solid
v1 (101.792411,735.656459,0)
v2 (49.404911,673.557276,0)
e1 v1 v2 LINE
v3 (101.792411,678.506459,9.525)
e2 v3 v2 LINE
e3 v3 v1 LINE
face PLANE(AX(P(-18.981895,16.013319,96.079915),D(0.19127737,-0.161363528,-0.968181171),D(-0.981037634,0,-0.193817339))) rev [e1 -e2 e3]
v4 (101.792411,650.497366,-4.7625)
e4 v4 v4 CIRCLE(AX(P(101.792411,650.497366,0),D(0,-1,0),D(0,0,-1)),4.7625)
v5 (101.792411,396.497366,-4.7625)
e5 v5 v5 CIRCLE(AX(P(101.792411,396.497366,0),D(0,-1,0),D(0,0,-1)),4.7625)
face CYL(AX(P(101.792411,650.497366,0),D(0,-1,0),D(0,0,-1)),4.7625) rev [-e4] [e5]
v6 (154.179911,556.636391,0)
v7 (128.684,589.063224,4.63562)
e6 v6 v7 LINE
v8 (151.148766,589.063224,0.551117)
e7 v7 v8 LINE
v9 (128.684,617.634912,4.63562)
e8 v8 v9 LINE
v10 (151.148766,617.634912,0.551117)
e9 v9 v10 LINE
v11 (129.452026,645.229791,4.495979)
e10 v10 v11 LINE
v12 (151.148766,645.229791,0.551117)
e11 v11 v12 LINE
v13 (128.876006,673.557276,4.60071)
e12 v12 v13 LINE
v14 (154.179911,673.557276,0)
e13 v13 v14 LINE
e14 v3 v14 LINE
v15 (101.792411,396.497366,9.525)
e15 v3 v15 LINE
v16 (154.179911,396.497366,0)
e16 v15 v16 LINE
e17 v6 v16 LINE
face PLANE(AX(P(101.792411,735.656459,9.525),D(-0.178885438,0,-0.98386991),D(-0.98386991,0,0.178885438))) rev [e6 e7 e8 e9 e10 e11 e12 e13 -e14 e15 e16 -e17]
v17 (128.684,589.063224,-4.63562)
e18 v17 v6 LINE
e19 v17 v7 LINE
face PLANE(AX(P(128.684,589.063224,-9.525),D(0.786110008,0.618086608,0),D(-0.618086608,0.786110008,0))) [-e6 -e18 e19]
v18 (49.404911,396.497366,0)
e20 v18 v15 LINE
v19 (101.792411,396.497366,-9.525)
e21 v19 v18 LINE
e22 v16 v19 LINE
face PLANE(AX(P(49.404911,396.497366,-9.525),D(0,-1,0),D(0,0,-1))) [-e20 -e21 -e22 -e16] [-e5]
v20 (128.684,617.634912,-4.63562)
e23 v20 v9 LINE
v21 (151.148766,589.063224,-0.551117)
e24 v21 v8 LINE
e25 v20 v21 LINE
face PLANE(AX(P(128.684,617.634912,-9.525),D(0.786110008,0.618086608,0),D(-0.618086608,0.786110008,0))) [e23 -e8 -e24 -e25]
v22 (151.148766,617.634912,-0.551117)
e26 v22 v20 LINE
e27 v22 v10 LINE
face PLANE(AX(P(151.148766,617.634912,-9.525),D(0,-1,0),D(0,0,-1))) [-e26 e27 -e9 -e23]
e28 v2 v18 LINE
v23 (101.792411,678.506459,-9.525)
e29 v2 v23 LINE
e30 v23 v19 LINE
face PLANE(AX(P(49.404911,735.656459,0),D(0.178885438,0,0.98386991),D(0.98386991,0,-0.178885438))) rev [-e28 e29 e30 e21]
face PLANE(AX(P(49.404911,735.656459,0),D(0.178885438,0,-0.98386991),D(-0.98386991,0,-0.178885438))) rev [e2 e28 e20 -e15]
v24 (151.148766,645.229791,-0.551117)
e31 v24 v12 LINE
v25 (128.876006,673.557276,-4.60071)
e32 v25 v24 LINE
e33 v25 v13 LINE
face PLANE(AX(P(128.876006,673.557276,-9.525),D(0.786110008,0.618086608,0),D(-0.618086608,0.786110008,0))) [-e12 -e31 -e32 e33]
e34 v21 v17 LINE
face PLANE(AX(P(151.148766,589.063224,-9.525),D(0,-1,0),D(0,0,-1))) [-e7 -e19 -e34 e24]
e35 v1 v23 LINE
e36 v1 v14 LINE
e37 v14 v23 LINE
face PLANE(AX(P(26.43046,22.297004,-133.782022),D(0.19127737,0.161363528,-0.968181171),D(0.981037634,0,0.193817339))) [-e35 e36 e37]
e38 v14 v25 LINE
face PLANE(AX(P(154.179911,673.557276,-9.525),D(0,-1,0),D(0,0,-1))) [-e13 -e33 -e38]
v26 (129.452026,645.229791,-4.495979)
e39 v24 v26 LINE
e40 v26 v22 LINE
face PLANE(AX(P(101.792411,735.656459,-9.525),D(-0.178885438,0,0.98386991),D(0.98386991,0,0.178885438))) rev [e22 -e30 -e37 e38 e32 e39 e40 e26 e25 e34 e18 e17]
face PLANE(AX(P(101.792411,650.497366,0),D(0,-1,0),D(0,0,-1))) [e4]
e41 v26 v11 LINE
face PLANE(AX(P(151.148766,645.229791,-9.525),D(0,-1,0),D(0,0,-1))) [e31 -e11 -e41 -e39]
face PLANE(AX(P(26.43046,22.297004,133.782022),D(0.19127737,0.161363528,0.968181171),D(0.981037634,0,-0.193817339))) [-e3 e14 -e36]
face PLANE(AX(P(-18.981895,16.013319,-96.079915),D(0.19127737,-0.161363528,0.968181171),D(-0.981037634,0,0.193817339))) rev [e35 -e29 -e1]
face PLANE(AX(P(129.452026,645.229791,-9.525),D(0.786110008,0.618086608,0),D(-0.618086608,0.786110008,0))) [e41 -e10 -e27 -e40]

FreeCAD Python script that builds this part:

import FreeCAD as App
import Part
import Sketcher
Q = App.Units.Quantity


def add_polygon(sketch, points):
    """Adds a closed chain of lines whose ends are joined by coincident constraints."""
    first, n = sketch.GeometryCount, len(points)
    for a, b in zip(points, points[1:] + points[:1]):
        sketch.addGeometry(Part.LineSegment(App.Vector(*a, 0), App.Vector(*b, 0)), False)
    for i in range(n):
        sketch.addConstraint(Sketcher.Constraint("Coincident", first + i, 2, first + (i + 1) % n, 1))

doc = App.newDocument("Part")
body = doc.addObject("PartDesign::Body", "Body")

# Sketch on XY plane
sketch1 = doc.addObject("Sketcher::SketchObject", "Sketch")
body.addObject(sketch1)
sketch1.AttachmentSupport = (doc.XY_Plane, [""])
sketch1.MapMode = "FlatFace"
add_polygon(sketch1, [(102, 736), (49, 674), (49, 396), (154, 396), (154, 557), (129, 589), (151, 589), (129, 618), (151, 618), (129, 645), (151, 645), (129, 674), (154, 674)])  # lines 0-12
sketch1.addConstraint([
    Sketcher.Constraint("Vertical", 1),
    Sketcher.Constraint("Horizontal", 2),
    Sketcher.Constraint("Vertical", 3),
    Sketcher.Constraint("Horizontal", 5),
    Sketcher.Constraint("Horizontal", 7),
    Sketcher.Constraint("Horizontal", 9),
    Sketcher.Constraint("Horizontal", 11),
    Sketcher.Constraint("Parallel", 4, 6),
    Sketcher.Constraint("Parallel", 6, 8),
    Sketcher.Constraint("Parallel", 8, 10),
    Sketcher.Constraint("Horizontal", 0, 2, 10, 2),
    Sketcher.Constraint("Vertical", 4, 2, 6, 2),
    Sketcher.Constraint("Vertical", 5, 2, 7, 2),
    Sketcher.Constraint("Vertical", 7, 2, 9, 2),
    Sketcher.Constraint("Vertical", 3, 2, 11, 2),
    Sketcher.Constraint("Equal", 0, 12),
    Sketcher.Constraint("DistanceX", 2, 1, 2, 2, Q("4.125 in")),
    Sketcher.Constraint("DistanceX", 9, 1, 9, 2, 21.69674),
    Sketcher.Constraint("DistanceY", 1, 2, 1, 1, 277.05991),
    Sketcher.Constraint("DistanceX", -1, 1, 4, 2, 128.684),
    Sketcher.Constraint("Distance", 4, 41.249739),
    Sketcher.Constraint("Distance", 6, 36.345661),
    Sketcher.Constraint("DistanceX", 5, 1, 5, 2, 22.464767),
    Sketcher.Constraint("DistanceX", 11, 1, 11, 2, 25.303905),
    Sketcher.Constraint("DistanceY", -1, 1, 3, 2, 556.636391),
    Sketcher.Constraint("DistanceY", -1, 1, 12, 2, 735.656459),
])
pad1 = doc.addObject("PartDesign::Pad", "Pad")
body.addObject(pad1)
pad1.Profile = sketch1
pad1.Type = "TwoLengths"
pad1.Length = Q("0.375 in")
pad1.Length2 = Q("0.375 in")

# Sketch on XZ plane
sketch2 = doc.addObject("Sketcher::SketchObject", "Sketch001")
body.addObject(sketch2)
sketch2.AttachmentSupport = (doc.XZ_Plane, [""])
sketch2.MapMode = "FlatFace"
sketch2.AttachmentOffset = App.Placement(App.Vector(0, 0, -396.497366), App.Rotation())
add_polygon(sketch2, [(49, 0), (102, 10), (154, 0), (160, 0), (160, 14), (44, 14), (44, 0)])  # lines 0-6
sketch2.addConstraint([
    Sketcher.Constraint("Horizontal", 2),
    Sketcher.Constraint("Vertical", 3),
    Sketcher.Constraint("Horizontal", 4),
    Sketcher.Constraint("Vertical", 5),
    Sketcher.Constraint("Horizontal", 6),
    Sketcher.Constraint("PointOnObject", 1, 2, -1),
    Sketcher.Constraint("PointOnObject", 5, 2, -1),
    Sketcher.Constraint("Equal", 0, 1),
    Sketcher.Constraint("DistanceY", -1, 1, 0, 2, Q("0.375 in")),
    Sketcher.Constraint("DistanceX", 0, 2, 1, 2, Q("2.0625 in")),
    Sketcher.Constraint("DistanceY", 3, 1, 3, 2, 13.649149),
    Sketcher.Constraint("DistanceX", 2, 1, 2, 2, 5.477415),
    Sketcher.Constraint("DistanceX", 4, 2, 4, 1, 115.498833),
    Sketcher.Constraint("DistanceX", -1, 1, 0, 2, 101.792411),
])
pocket1 = doc.addObject("PartDesign::Pocket", "Pocket")
body.addObject(pocket1)
pocket1.Profile = sketch2
pocket1.Type = "ThroughAll"

# Sketch on XZ plane
sketch3 = doc.addObject("Sketcher::SketchObject", "Sketch002")
body.addObject(sketch3)
sketch3.AttachmentSupport = (doc.XZ_Plane, [""])
sketch3.MapMode = "FlatFace"
sketch3.AttachmentOffset = App.Placement(App.Vector(0, 0, -396.497366), App.Rotation())
add_polygon(sketch3, [(102, -10), (49, 0), (44, 0), (44, -15), (160, -15), (160, 0), (154, 0)])  # lines 0-6
sketch3.addConstraint([
    Sketcher.Constraint("Horizontal", 1),
    Sketcher.Constraint("Vertical", 2),
    Sketcher.Constraint("Horizontal", 3),
    Sketcher.Constraint("Vertical", 4),
    Sketcher.Constraint("Horizontal", 5),
    Sketcher.Constraint("PointOnObject", 0, 2, -1),
    Sketcher.Constraint("PointOnObject", 4, 2, -1),
    Sketcher.Constraint("Equal", 0, 6),
    Sketcher.Constraint("DistanceY", 6, 2, -1, 1, Q("0.375 in")),
    Sketcher.Constraint("DistanceX", 0, 2, 5, 2, Q("4.125 in")),
    Sketcher.Constraint("DistanceX", 1, 2, 1, 1, 5.722898),
    Sketcher.Constraint("DistanceX", 5, 2, 5, 1, 5.400659),
    Sketcher.Constraint("DistanceY", 2, 2, 2, 1, 14.500746),
    Sketcher.Constraint("DistanceX", -1, 1, 0, 2, 49.404911),
])
pocket2 = doc.addObject("PartDesign::Pocket", "Pocket001")
body.addObject(pocket2)
pocket2.Profile = sketch3
pocket2.Type = "ThroughAll"

# Sketch on an angled plane
sketch4 = doc.addObject("Sketcher::SketchObject", "Sketch003")
body.addObject(sketch4)
sketch4.Placement = App.Placement(App.Vector(26.43046, 22.297004, 133.782022), App.Rotation(App.Vector(0.981536025, -0.031445806, -0.188674835), App.Vector(0, 0.986393924, -0.164398987), App.Vector(0.19127737, 0.161363528, 0.968181171), "ZXY"))
add_polygon(sketch4, [(40, 769), (40, 633), (138, 633), (138, 769)])  # lines 0-3
sketch4.addConstraint([
    Sketcher.Constraint("Vertical", 0),
    Sketcher.Constraint("Horizontal", 1),
    Sketcher.Constraint("Vertical", 2),
    Sketcher.Constraint("Horizontal", 3),
    Sketcher.Constraint("DistanceX", 1, 1, 1, 2, 97.518379),
    Sketcher.Constraint("DistanceY", 0, 2, 0, 1, 136.419581),
    Sketcher.Constraint("DistanceX", -1, 1, 0, 2, 40.48918),
    Sketcher.Constraint("DistanceY", -1, 1, 0, 2, 632.533041),
])
pocket3 = doc.addObject("PartDesign::Pocket", "Pocket002")
body.addObject(pocket3)
pocket3.Profile = sketch4
pocket3.Type = "ThroughAll"
pocket3.Reversed = True

# Sketch on an angled plane
sketch5 = doc.addObject("Sketcher::SketchObject", "Sketch004")
body.addObject(sketch5)
sketch5.Placement = App.Placement(App.Vector(-18.981895, 16.013319, 96.079915), App.Rotation(App.Vector(0.981536025, 0.031445806, 0.188674835), App.Vector(0, 0.986393924, -0.164398987), App.Vector(-0.19127737, 0.161363528, 0.968181171), "ZXY"))
add_polygon(sketch5, [(61, 775), (61, 621), (136, 621), (136, 775)])  # lines 0-3
sketch5.addConstraint([
    Sketcher.Constraint("Vertical", 0),
    Sketcher.Constraint("Horizontal", 1),
    Sketcher.Constraint("Vertical", 2),
    Sketcher.Constraint("Horizontal", 3),
    Sketcher.Constraint("DistanceX", 1, 1, 1, 2, 75.100701),
    Sketcher.Constraint("DistanceX", -1, 1, 0, 2, Q("2.4143001 in")),
    Sketcher.Constraint("DistanceY", 0, 2, 0, 1, 154.277978),
    Sketcher.Constraint("DistanceY", -1, 1, 0, 2, 620.653796),
])
pocket4 = doc.addObject("PartDesign::Pocket", "Pocket003")
body.addObject(pocket4)
pocket4.Profile = sketch5
pocket4.Type = "ThroughAll"
pocket4.Reversed = True
doc.recompute()

mirrored = doc.addObject("PartDesign::Mirrored", "Mirrored")
body.addObject(mirrored)
mirrored.Originals = [pocket3, pocket4]
mirrored.MirrorPlane = (doc.XY_Plane, [""])
body.Tip = mirrored

# Sketch on XZ plane
sketch6 = doc.addObject("Sketcher::SketchObject", "Sketch005")
body.addObject(sketch6)
sketch6.AttachmentSupport = (doc.XZ_Plane, [""])
sketch6.MapMode = "FlatFace"
sketch6.AttachmentOffset = App.Placement(App.Vector(0, 0, -396.497366), App.Rotation())
sketch6.addGeometry(Part.Circle(App.Vector(101.8, 0, 0), App.Vector(0, 0, 1), 4.8), False)
sketch6.addConstraint([
    Sketcher.Constraint("PointOnObject", 0, 3, -1),
    Sketcher.Constraint("Diameter", 0, Q("0.375 in")),
    Sketcher.Constraint("DistanceX", -1, 1, 0, 3, 101.792411),
])
pocket5 = doc.addObject("PartDesign::Pocket", "Pocket004")
body.addObject(pocket5)
pocket5.Profile = sketch6
pocket5.Length = Q("10 in")

doc.recompute()
